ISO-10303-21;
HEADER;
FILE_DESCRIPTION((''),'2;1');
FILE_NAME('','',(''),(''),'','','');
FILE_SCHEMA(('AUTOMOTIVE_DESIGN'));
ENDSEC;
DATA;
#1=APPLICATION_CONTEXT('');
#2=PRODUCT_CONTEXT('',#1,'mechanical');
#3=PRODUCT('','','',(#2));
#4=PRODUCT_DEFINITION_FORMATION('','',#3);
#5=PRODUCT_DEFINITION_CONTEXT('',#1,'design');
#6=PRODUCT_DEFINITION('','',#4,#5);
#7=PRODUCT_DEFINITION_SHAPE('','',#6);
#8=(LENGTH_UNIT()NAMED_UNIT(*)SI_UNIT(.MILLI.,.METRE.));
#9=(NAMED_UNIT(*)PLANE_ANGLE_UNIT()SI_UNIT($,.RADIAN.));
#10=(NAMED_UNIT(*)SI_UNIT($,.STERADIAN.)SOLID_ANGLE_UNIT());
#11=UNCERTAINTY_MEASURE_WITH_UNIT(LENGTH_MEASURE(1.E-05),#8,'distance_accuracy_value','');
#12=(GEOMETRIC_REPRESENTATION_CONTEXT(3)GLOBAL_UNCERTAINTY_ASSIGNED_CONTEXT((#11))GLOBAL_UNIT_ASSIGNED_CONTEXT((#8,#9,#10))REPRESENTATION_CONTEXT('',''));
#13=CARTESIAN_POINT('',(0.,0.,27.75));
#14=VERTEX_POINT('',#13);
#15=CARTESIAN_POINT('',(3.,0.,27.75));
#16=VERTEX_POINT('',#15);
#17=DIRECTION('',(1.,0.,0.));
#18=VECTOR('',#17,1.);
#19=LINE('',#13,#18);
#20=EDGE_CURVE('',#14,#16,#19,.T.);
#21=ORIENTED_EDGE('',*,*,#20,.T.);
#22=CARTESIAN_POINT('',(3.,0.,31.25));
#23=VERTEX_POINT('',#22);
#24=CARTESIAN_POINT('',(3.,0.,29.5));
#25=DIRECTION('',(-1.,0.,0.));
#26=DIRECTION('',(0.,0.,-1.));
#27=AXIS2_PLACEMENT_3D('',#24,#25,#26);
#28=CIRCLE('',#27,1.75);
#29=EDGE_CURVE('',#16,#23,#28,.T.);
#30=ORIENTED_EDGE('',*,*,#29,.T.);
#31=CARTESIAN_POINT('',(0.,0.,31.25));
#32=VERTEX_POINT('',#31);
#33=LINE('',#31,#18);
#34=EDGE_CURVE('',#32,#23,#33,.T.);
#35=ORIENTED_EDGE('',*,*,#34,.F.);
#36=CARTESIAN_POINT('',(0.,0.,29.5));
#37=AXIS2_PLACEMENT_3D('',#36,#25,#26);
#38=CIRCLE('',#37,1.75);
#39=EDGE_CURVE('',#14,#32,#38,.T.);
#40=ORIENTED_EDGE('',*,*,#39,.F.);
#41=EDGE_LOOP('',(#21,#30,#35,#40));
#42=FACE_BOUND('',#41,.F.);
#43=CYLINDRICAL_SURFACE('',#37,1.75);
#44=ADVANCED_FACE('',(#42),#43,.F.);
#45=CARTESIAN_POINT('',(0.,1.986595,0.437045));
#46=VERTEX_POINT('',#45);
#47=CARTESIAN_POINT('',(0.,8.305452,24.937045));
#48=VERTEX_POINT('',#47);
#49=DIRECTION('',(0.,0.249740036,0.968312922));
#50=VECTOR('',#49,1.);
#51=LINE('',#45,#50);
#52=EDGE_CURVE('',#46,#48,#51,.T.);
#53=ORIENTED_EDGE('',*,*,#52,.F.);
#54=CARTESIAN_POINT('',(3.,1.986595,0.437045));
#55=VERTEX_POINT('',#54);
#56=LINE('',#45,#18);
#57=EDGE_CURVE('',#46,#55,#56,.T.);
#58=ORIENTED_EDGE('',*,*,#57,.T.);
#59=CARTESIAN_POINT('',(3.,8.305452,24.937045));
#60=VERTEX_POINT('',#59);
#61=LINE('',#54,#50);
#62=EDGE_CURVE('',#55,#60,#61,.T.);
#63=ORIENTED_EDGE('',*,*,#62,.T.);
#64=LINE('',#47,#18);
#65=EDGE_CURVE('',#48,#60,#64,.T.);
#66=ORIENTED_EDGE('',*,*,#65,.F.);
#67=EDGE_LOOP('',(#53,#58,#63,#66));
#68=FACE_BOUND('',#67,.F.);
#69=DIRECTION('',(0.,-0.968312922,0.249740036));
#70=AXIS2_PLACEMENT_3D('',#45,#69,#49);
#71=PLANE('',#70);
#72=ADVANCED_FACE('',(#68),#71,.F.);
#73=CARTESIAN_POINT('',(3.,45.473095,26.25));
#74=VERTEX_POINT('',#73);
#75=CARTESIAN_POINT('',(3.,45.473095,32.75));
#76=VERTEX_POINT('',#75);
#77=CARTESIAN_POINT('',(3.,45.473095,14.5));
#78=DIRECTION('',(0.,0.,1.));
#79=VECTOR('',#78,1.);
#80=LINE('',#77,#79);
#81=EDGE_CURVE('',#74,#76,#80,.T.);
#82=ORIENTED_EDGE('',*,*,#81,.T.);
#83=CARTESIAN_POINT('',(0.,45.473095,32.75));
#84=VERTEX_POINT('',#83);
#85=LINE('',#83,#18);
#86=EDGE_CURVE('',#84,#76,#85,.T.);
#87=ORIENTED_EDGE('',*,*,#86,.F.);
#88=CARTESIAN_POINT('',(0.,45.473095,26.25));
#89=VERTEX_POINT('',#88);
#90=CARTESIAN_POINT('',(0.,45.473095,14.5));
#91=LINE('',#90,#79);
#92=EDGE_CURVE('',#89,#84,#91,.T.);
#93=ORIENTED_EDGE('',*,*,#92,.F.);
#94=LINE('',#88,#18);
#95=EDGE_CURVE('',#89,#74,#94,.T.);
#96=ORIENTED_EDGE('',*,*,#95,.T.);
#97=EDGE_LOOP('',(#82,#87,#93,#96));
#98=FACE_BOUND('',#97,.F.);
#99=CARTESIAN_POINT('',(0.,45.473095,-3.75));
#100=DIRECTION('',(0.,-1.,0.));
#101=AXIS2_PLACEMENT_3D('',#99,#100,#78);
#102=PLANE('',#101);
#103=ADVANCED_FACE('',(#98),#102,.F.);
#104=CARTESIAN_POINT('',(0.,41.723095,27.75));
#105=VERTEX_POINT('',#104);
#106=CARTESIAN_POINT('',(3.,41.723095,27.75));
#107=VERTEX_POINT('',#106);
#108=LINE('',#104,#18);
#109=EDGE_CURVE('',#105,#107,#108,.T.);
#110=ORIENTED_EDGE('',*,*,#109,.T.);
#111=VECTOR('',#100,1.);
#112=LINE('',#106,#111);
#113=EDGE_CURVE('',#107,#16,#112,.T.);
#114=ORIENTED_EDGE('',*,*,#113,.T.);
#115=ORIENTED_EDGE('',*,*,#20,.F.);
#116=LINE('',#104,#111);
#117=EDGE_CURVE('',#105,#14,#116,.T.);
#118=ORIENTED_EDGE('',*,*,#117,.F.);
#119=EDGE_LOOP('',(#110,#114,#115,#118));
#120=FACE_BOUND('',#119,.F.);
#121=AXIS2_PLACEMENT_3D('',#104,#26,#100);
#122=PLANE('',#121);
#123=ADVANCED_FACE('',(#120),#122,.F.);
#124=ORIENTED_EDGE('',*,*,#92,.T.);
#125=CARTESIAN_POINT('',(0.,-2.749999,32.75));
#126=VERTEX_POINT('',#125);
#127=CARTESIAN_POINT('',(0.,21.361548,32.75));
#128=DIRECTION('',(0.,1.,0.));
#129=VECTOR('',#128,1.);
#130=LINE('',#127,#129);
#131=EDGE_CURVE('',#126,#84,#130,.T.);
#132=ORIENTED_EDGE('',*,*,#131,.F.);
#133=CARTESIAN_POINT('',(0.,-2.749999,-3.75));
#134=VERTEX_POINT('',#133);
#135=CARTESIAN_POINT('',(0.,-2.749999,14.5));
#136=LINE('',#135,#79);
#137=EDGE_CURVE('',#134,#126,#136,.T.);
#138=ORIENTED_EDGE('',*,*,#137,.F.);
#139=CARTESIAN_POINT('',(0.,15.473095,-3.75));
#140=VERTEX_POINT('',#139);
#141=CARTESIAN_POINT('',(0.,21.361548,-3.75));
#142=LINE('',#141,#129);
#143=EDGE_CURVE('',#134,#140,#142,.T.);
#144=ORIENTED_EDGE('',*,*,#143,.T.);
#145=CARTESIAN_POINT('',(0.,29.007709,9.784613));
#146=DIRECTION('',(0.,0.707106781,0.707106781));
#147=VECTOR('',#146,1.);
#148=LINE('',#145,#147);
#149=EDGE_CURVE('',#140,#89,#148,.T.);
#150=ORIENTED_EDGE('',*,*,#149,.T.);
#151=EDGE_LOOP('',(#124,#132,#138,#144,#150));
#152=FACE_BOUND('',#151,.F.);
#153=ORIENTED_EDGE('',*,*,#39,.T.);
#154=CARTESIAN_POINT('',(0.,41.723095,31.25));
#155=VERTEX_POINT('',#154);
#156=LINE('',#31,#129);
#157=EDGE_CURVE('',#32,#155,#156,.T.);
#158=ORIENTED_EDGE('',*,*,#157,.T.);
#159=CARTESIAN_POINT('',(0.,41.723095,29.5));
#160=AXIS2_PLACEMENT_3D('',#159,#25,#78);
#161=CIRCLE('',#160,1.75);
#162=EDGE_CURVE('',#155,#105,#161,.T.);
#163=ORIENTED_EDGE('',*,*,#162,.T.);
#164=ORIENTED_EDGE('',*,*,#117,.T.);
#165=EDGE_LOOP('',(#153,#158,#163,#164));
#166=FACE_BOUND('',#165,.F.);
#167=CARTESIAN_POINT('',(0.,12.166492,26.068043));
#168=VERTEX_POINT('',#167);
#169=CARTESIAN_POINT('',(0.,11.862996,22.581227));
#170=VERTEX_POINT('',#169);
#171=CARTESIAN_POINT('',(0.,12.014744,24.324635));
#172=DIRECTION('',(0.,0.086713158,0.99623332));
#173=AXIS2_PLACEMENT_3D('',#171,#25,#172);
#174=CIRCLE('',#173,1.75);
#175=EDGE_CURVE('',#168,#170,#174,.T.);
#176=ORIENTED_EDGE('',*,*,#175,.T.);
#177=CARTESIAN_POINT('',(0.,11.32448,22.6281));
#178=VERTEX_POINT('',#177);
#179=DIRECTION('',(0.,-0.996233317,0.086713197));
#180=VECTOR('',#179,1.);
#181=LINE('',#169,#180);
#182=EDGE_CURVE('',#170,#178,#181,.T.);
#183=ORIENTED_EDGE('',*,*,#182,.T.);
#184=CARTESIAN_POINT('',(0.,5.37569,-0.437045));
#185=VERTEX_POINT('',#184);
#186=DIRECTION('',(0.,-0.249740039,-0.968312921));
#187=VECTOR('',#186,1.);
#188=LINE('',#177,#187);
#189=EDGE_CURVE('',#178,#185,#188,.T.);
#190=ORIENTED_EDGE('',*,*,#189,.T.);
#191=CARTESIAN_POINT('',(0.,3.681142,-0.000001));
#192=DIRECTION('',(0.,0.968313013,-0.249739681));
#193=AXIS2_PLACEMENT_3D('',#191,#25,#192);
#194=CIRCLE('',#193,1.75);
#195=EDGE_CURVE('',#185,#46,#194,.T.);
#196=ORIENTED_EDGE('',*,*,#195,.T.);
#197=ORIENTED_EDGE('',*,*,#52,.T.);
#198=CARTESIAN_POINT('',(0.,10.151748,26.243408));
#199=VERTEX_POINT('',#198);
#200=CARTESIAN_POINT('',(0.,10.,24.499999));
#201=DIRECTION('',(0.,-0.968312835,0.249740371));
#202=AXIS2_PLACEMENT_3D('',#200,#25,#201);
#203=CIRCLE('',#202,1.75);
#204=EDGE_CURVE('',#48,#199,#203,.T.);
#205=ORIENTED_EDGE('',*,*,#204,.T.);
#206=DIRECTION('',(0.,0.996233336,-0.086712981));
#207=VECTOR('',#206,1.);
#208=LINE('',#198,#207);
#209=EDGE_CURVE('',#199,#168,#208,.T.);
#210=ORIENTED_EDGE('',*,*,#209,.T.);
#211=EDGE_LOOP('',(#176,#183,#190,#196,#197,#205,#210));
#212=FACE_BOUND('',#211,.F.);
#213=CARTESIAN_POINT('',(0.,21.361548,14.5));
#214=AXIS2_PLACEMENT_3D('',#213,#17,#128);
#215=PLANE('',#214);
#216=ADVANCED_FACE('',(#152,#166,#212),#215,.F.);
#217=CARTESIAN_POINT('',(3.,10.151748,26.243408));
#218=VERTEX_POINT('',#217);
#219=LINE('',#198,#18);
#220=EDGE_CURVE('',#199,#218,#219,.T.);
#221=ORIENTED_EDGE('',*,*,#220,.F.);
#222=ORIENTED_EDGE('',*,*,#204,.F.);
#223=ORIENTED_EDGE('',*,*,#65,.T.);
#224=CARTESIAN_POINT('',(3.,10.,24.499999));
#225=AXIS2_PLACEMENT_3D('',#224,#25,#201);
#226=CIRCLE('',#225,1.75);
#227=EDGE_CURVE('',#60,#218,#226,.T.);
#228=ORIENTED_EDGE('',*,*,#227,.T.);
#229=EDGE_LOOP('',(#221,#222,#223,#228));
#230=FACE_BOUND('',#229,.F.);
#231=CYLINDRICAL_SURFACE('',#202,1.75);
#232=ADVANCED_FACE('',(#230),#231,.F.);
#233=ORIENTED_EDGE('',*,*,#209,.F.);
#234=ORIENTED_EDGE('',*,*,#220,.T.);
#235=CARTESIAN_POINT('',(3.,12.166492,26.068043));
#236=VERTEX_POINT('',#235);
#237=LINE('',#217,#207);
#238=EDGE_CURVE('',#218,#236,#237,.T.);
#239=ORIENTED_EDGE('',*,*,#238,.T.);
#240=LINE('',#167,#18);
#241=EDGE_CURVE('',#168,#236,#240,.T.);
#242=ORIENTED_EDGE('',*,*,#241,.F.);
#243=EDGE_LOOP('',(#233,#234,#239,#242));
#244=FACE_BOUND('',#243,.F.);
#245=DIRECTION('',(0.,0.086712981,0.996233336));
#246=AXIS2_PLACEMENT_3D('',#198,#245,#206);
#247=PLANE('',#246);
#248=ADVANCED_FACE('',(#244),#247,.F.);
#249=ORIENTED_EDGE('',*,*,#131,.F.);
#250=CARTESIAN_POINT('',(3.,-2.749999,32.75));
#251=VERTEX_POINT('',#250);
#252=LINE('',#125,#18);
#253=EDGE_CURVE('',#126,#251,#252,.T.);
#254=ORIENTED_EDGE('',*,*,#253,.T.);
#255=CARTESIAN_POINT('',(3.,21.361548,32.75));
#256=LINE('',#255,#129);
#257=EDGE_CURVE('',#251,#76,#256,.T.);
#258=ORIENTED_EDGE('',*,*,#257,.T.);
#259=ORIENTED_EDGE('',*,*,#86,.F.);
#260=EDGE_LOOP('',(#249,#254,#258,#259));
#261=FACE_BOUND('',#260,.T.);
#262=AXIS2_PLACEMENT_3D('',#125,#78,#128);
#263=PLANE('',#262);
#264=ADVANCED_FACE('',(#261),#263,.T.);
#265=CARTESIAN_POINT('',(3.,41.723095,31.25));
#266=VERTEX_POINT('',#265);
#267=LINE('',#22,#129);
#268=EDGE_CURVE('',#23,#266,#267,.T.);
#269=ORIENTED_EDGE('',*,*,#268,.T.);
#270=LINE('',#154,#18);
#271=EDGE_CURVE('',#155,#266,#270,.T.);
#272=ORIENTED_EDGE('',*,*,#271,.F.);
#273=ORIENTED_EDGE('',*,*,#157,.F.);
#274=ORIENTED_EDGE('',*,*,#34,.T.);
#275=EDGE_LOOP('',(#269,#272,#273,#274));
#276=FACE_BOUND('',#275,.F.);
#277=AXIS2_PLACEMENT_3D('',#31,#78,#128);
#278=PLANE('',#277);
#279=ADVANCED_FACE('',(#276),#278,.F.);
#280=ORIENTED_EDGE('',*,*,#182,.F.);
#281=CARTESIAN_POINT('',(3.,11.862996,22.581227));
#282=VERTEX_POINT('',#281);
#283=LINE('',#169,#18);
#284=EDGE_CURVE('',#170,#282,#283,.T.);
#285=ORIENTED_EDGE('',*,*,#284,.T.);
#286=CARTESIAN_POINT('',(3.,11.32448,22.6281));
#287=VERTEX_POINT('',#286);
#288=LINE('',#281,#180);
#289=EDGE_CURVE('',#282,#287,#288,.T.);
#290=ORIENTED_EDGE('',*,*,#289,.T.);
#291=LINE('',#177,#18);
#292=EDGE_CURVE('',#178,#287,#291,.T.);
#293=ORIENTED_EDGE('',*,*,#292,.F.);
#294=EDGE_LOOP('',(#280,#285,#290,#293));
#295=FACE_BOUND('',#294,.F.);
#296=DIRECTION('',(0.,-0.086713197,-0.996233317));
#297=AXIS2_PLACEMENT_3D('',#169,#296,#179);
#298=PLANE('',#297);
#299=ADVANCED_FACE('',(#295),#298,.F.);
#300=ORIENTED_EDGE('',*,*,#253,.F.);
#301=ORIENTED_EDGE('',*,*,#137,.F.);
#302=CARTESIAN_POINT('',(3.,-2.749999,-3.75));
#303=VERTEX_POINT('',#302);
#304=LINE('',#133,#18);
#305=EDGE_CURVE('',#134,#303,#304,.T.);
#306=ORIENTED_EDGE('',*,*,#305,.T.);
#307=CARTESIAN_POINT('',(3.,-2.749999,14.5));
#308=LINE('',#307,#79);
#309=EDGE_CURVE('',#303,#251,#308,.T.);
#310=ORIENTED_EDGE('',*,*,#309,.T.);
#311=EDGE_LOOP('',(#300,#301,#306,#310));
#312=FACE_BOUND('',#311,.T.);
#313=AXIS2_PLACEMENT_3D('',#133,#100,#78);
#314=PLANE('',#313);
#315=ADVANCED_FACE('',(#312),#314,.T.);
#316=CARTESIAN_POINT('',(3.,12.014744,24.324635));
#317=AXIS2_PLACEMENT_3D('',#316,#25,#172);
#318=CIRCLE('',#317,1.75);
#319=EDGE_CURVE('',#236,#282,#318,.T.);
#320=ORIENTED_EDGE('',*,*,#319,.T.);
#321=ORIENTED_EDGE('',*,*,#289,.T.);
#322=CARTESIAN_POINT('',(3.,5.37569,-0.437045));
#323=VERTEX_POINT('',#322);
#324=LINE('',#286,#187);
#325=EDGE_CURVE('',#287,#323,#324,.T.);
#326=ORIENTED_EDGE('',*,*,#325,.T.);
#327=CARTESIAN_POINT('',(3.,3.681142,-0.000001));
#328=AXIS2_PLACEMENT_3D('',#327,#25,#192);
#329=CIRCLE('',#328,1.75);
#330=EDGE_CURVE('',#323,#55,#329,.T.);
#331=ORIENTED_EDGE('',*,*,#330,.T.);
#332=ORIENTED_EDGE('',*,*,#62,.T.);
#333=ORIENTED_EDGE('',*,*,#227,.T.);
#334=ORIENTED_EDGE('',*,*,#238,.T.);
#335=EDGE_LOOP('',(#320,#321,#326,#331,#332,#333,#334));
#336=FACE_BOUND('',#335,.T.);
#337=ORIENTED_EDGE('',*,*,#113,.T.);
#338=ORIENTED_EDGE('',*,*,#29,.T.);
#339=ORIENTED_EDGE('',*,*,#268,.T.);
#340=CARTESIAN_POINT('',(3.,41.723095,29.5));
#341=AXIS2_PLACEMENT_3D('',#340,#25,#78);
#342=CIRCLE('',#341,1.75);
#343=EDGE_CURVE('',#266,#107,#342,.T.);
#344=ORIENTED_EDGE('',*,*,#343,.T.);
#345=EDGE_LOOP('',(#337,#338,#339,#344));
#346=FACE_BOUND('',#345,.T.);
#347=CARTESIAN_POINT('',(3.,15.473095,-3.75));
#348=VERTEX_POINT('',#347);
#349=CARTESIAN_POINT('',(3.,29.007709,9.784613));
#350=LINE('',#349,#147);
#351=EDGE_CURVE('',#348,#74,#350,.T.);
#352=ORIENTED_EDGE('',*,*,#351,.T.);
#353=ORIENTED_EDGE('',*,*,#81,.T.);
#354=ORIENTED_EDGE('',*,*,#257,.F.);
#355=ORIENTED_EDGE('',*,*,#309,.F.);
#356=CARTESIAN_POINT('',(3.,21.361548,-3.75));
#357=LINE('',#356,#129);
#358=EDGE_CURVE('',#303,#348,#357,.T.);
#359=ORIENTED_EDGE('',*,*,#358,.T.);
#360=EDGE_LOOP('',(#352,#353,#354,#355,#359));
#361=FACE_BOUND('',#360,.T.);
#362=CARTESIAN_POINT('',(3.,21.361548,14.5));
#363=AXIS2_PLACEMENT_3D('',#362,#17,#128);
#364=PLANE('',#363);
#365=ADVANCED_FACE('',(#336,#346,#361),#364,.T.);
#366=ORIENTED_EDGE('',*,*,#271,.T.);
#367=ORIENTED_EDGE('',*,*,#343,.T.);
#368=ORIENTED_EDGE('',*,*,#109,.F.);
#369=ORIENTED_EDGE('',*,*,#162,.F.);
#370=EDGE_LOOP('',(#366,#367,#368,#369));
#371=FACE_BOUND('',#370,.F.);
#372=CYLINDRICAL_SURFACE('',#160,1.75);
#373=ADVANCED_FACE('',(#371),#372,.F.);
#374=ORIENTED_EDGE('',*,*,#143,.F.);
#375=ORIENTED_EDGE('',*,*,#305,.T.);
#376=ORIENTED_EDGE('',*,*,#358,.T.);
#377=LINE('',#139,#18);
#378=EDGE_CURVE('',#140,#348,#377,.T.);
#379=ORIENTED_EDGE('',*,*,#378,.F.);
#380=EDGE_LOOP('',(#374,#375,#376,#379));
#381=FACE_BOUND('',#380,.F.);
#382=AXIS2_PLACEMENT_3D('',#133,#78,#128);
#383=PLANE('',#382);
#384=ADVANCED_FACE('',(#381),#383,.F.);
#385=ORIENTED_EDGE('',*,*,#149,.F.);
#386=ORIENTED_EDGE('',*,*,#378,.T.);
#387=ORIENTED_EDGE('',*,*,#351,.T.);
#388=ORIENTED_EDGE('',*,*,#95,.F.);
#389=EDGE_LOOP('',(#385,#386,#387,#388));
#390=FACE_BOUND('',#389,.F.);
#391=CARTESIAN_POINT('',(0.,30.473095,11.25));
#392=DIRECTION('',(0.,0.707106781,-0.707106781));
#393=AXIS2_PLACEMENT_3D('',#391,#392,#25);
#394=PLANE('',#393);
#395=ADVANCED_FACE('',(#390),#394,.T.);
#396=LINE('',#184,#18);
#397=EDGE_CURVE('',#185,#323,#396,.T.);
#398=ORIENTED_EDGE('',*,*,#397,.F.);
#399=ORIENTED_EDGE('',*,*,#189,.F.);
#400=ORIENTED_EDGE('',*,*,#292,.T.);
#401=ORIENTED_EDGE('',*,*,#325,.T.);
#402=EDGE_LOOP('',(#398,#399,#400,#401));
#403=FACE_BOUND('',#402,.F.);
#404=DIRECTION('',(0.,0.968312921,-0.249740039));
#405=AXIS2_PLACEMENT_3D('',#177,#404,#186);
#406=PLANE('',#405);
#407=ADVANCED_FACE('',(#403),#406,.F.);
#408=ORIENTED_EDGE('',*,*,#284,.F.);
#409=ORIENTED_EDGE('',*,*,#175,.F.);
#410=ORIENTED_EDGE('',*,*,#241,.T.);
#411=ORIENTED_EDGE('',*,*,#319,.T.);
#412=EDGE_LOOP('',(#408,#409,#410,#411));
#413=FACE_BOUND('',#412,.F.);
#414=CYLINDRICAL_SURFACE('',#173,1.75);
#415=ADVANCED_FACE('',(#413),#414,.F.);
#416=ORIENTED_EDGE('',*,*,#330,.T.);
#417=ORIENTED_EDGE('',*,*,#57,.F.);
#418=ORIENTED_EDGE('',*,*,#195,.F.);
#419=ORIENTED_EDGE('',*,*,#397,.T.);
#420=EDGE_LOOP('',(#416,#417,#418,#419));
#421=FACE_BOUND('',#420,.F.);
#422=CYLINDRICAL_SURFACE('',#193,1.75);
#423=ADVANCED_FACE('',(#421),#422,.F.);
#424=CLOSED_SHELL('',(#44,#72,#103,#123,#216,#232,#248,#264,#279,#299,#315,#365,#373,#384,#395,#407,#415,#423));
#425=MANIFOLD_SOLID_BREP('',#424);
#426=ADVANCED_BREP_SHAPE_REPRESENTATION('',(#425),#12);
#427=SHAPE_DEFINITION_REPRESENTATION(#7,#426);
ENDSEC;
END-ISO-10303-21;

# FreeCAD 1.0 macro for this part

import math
import FreeCAD as App
import Part
import Sketcher
from FreeCAD import Vector
Q = App.Units.Quantity


def edges_at(feature, points):
    """Names of the edges that pass closest to the given points."""
    edges = feature.Shape.Edges
    near = lambda p: min(range(len(edges)), key=lambda i: edges[i].distToShape(Part.Vertex(*p))[0])
    return sorted({f"Edge{near(p) + 1}" for p in points})

doc = App.newDocument("Part")
body = doc.addObject("PartDesign::Body", "Body")

# Sketch on YZ plane
sketch1 = body.newObject("Sketcher::SketchObject", "Sketch")
sketch1.AttachmentSupport = (doc.getObject("YZ_Plane"), [""])
sketch1.MapMode = "FlatFace"
sketch1.addGeometry(Part.LineSegment(Vector(-2.749999, 32.75, 0), Vector(-2.749999, -3.75, 0)), False)
sketch1.addGeometry(Part.LineSegment(Vector(-2.749999, -3.75, 0), Vector(45.473095, -3.75, 0)), False)
sketch1.addGeometry(Part.LineSegment(Vector(45.473095, -3.75, 0), Vector(45.473095, 32.75, 0)), False)
sketch1.addGeometry(Part.LineSegment(Vector(45.473095, 32.75, 0), Vector(-2.749999, 32.75, 0)), False)
sketch1.addGeometry(Part.ArcOfCircle(Part.Circle(Vector(3.681142, -0.000001, 0), Vector(0, 0, 1), 1.75), math.radians(165.537852), math.radians(345.537892)), False)
sketch1.addGeometry(Part.LineSegment(Vector(1.986595, 0.437045, 0), Vector(8.305452, 24.937045, 0)), False)
sketch1.addGeometry(Part.ArcOfCircle(Part.Circle(Vector(10, 24.499999, 0), Vector(0, 0, 1), 1.75), math.radians(85.025454), math.radians(165.537851)), False)
sketch1.addGeometry(Part.LineSegment(Vector(10.151748, 26.243408, 0), Vector(12.166492, 26.068043, 0)), False)
sketch1.addGeometry(Part.ArcOfCircle(Part.Circle(Vector(12.014744, 24.324635, 0), Vector(0, 0, 1), 1.75), math.radians(-94.974545), math.radians(85.025455)), False)
sketch1.addGeometry(Part.LineSegment(Vector(11.862996, 22.581227, 0), Vector(11.32448, 22.6281, 0)), False)
sketch1.addGeometry(Part.LineSegment(Vector(11.32448, 22.6281, 0), Vector(5.37569, -0.437045, 0)), False)
sketch1.addGeometry(Part.ArcOfCircle(Part.Circle(Vector(41.723095, 29.5, 0), Vector(0, 0, 1), 1.75), math.radians(-90), math.radians(90)), False)
sketch1.addGeometry(Part.LineSegment(Vector(41.723095, 27.75, 0), Vector(0, 27.75, 0)), False)
sketch1.addGeometry(Part.ArcOfCircle(Part.Circle(Vector(0, 29.5, 0), Vector(0, 0, 1), 1.75), math.radians(90), math.radians(270)), False)
sketch1.addGeometry(Part.LineSegment(Vector(0, 31.25, 0), Vector(41.723095, 31.25, 0)), False)
sketch1.addConstraint(Sketcher.Constraint("Coincident", 0, 2, 1, 1))
sketch1.addConstraint(Sketcher.Constraint("Coincident", 1, 2, 2, 1))
sketch1.addConstraint(Sketcher.Constraint("Coincident", 2, 2, 3, 1))
sketch1.addConstraint(Sketcher.Constraint("Coincident", 3, 2, 0, 1))
sketch1.addConstraint(Sketcher.Constraint("Tangent", 4, 1, 5, 1))
sketch1.addConstraint(Sketcher.Constraint("Tangent", 5, 2, 6, 2))
sketch1.addConstraint(Sketcher.Constraint("Tangent", 6, 1, 7, 1))
sketch1.addConstraint(Sketcher.Constraint("Tangent", 7, 2, 8, 2))
sketch1.addConstraint(Sketcher.Constraint("Tangent", 8, 1, 9, 1))
sketch1.addConstraint(Sketcher.Constraint("Coincident", 9, 2, 10, 1))
sketch1.addConstraint(Sketcher.Constraint("Tangent", 10, 2, 4, 2))
sketch1.addConstraint(Sketcher.Constraint("Tangent", 11, 1, 12, 1))
sketch1.addConstraint(Sketcher.Constraint("Tangent", 12, 2, 13, 2))
sketch1.addConstraint(Sketcher.Constraint("Tangent", 13, 1, 14, 1))
sketch1.addConstraint(Sketcher.Constraint("Tangent", 14, 2, 11, 2))
sketch1.addConstraint(Sketcher.Constraint("Vertical", 0))
sketch1.addConstraint(Sketcher.Constraint("Horizontal", 1))
sketch1.addConstraint(Sketcher.Constraint("Vertical", 2))
sketch1.addConstraint(Sketcher.Constraint("Horizontal", 3))
sketch1.addConstraint(Sketcher.Constraint("Horizontal", 12))
sketch1.addConstraint(Sketcher.Constraint("Horizontal", 14))
sketch1.addConstraint(Sketcher.Constraint("Equal", 4, 6))
sketch1.addConstraint(Sketcher.Constraint("Equal", 6, 8))
sketch1.addConstraint(Sketcher.Constraint("Equal", 8, 11))
sketch1.addConstraint(Sketcher.Constraint("PointOnObject", 4, 3, -1))
sketch1.addConstraint(Sketcher.Constraint("PointOnObject", 13, 3, -2))
sketch1.addConstraint(Sketcher.Constraint("Parallel", 7, 9))
sketch1.addConstraint(Sketcher.Constraint("Parallel", 5, 10))
sketch1.addConstraint(Sketcher.Constraint("Radius", 4, Q("1.75 mm")))
sketch1.addConstraint(Sketcher.Constraint("DistanceY", 0, 2, 0, 1, Q("36.5 mm")))
sketch1.addConstraint(Sketcher.Constraint("DistanceX", -1, 1, 6, 3, Q("10 mm")))
sketch1.addConstraint(Sketcher.Constraint("DistanceY", 6, 3, 11, 3, Q("5.000001 mm")))
sketch1.addConstraint(Sketcher.Constraint("DistanceY", 11, 1, 2, 2, Q("5 mm")))
sketch1.addConstraint(Sketcher.Constraint("DistanceY", -1, 1, 6, 3, Q("24.499999 mm")))
sketch1.addConstraint(Sketcher.Constraint("DistanceX", 0, 2, -1, 1, Q("2.749999 mm")))
sketch1.addConstraint(Sketcher.Constraint("DistanceX", 11, 3, 1, 2, Q("3.75 mm")))
sketch1.addConstraint(Sketcher.Constraint("DistanceY", -1, 1, 9, 2, Q("22.6281 mm")))
sketch1.addConstraint(Sketcher.Constraint("DistanceX", 4, 3, 8, 3, Q("8.333602 mm")))
sketch1.addConstraint(Sketcher.Constraint("DistanceX", 8, 1, 11, 1, Q("29.860099 mm")))
sketch1.addConstraint(Sketcher.Constraint("Distance", 5, Q("25.301738 mm")))
pad1 = body.newObject("PartDesign::Pad", "Pad")
pad1.Profile = sketch1
pad1.Length = 3
doc.recompute()

chamfer = body.newObject("PartDesign::Chamfer", "Chamfer")
chamfer.Base = (pad1, edges_at(pad1, [(1.5, 45.473, -3.75)]))
chamfer.Size = 30

doc.recompute()
